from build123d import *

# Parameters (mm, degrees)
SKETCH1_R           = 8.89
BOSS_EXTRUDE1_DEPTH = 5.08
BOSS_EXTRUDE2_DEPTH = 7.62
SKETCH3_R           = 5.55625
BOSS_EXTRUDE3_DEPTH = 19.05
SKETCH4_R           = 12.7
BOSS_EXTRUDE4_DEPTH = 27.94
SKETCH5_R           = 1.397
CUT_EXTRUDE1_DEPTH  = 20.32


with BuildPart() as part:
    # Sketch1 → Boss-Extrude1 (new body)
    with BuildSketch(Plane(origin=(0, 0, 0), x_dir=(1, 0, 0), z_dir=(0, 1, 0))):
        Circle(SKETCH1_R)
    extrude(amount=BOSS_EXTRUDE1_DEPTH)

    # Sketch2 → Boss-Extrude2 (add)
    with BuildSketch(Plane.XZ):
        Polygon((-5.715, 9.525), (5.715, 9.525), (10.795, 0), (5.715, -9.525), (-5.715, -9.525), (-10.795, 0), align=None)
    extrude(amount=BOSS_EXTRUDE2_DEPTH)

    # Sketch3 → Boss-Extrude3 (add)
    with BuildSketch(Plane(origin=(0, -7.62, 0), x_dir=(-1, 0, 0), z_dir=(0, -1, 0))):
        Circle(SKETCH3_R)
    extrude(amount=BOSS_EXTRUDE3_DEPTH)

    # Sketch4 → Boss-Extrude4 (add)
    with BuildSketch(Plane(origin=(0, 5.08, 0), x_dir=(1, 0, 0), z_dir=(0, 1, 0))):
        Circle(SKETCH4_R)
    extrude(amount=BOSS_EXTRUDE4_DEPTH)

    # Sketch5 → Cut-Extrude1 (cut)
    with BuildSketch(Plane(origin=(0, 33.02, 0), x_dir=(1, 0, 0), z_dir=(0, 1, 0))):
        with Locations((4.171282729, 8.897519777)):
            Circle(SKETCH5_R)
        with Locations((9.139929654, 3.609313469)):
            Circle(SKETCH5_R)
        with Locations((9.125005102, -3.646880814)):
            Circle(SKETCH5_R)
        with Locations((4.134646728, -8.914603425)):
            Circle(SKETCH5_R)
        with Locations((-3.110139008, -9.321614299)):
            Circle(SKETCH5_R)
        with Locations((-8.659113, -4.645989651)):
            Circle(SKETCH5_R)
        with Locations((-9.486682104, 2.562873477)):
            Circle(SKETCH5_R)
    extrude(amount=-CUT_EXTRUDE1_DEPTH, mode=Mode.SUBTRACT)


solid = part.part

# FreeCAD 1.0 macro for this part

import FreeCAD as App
import Part
import Sketcher
from FreeCAD import Vector
Q = App.Units.Quantity


def add_polygon(sketch, points):
    """Adds a closed chain of lines whose ends are joined by coincident constraints."""
    first, n = sketch.GeometryCount, len(points)
    for a, b in zip(points, points[1:] + points[:1]):
        sketch.addGeometry(Part.LineSegment(App.Vector(*a, 0), App.Vector(*b, 0)), False)
    for i in range(n):
        sketch.addConstraint(Sketcher.Constraint("Coincident", first + i, 2, first + (i + 1) % n, 1))

doc = App.newDocument("Part")
body = doc.addObject("PartDesign::Body", "Body")

sketch1 = body.newObject("Sketcher::SketchObject", "Sketch")
sketch1.AttachmentSupport = (doc.getObject("XZ_Plane"), [""])
sketch1.MapMode = "FlatFace"
sketch1.addGeometry(Part.Circle(Vector(0, 0, 0), Vector(0, 0, 1), 9), False)
sketch1.addConstraint([
    Sketcher.Constraint("Coincident", 0, 3, -1, 1),
    Sketcher.Constraint("Diameter", 0, Q("0.7 in")),
])
pad1 = body.newObject("PartDesign::Pad", "Pad")
pad1.Profile = sketch1
pad1.Length = Q("0.2 in")
pad1.Reversed = True

sketch2 = body.newObject("Sketcher::SketchObject", "Sketch001")
sketch2.AttachmentSupport = (doc.getObject("XZ_Plane"), [""])
sketch2.MapMode = "FlatFace"
add_polygon(sketch2, [(6, 10), (-6, 10), (-11, 0), (-6, -10), (6, -10), (11, 0)])
sketch2.addConstraint([
    Sketcher.Constraint("Horizontal", 0),
    Sketcher.Constraint("Horizontal", 3),
    Sketcher.Constraint("Symmetric", 0, 2, 3, 2, -1, 1),
    Sketcher.Constraint("Symmetric", 1, 2, 4, 2, -1, 1),
    Sketcher.Constraint("PointOnObject", 1, 2, -1),
    Sketcher.Constraint("Parallel", 2, 5),
    Sketcher.Constraint("Vertical", 0, 2, 2, 2),
    Sketcher.Constraint("DistanceX", 0, 2, 0, 1, Q("0.45 in")),
    Sketcher.Constraint("DistanceX", 1, 2, 0, 2, Q("0.2 in")),
    Sketcher.Constraint("DistanceY", 2, 2, 0, 2, Q("0.75 in")),
])
pad2 = body.newObject("PartDesign::Pad", "Pad001")
pad2.Profile = sketch2
pad2.Length = Q("0.3 in")

sketch3 = body.newObject("Sketcher::SketchObject", "Sketch002")
sketch3.AttachmentSupport = (doc.getObject("XZ_Plane"), [""])
sketch3.MapMode = "FlatFace"
sketch3.AttachmentOffset = App.Placement(Vector(0, 0, 0.3 * 25.4), App.Rotation())
sketch3.addGeometry(Part.Circle(Vector(0, 0, 0), Vector(0, 0, 1), 6), False)
sketch3.addConstraint([
    Sketcher.Constraint("Coincident", 0, 3, -1, 1),
    Sketcher.Constraint("Diameter", 0, Q("0.4375 in")),
])
pad3 = body.newObject("PartDesign::Pad", "Pad002")
pad3.Profile = sketch3
pad3.Length = Q("0.75 in")

sketch4 = body.newObject("Sketcher::SketchObject", "Sketch003")
sketch4.AttachmentSupport = (doc.getObject("XZ_Plane"), [""])
sketch4.MapMode = "FlatFace"
sketch4.AttachmentOffset = App.Placement(Vector(0, 0, -0.2 * 25.4), App.Rotation())
sketch4.addGeometry(Part.Circle(Vector(0, 0, 0), Vector(0, 0, 1), 13), False)
sketch4.addConstraint([
    Sketcher.Constraint("Coincident", 0, 3, -1, 1),
    Sketcher.Constraint("Diameter", 0, Q("1 in")),
])
pad4 = body.newObject("PartDesign::Pad", "Pad003")
pad4.Profile = sketch4
pad4.Length = Q("1.1 in")
pad4.Reversed = True

sketch5 = body.newObject("Sketcher::SketchObject", "Sketch004")
sketch5.AttachmentSupport = (doc.getObject("XZ_Plane"), [""])
sketch5.MapMode = "FlatFace"
sketch5.AttachmentOffset = App.Placement(Vector(0, 0, -1.3 * 25.4), App.Rotation())
sketch5.addGeometry([
    Part.Circle(Vector(4.2, -8.9, 0), Vector(0, 0, 1), 1.4),
    Part.Circle(Vector(9.1, -3.6, 0), Vector(0, 0, 1), 1.4),
    Part.Circle(Vector(9.1, 3.6, 0), Vector(0, 0, 1), 1.4),
    Part.Circle(Vector(4.1, 8.9, 0), Vector(0, 0, 1), 1.4),
    Part.Circle(Vector(-3.1, 9.3, 0), Vector(0, 0, 1), 1.4),
    Part.Circle(Vector(-8.7, 4.6, 0), Vector(0, 0, 1), 1.4),
    Part.Circle(Vector(-9.5, -2.6, 0), Vector(0, 0, 1), 1.4),
], False)
sketch5.addConstraint([
    Sketcher.Constraint("Equal", 0, 1),
    Sketcher.Constraint("Equal", 1, 2),
    Sketcher.Constraint("Equal", 2, 3),
    Sketcher.Constraint("Equal", 3, 4),
    Sketcher.Constraint("Equal", 4, 5),
    Sketcher.Constraint("Equal", 5, 6),
    Sketcher.Constraint("Diameter", 0, Q("0.11 in")),
    Sketcher.Constraint("DistanceY", 0, 3, 2, 3, Q("12.544401 mm")),
    Sketcher.Constraint("DistanceY", 0, 3, -1, 1, Q("8.89752 mm")),
    Sketcher.Constraint("DistanceX", -1, 1, 1, 3, Q("9.13993 mm")),
    Sketcher.Constraint("DistanceX", 4, 3, -1, 1, Q("3.110139 mm")),
    Sketcher.Constraint("DistanceY", -1, 1, 5, 3, Q("4.64599 mm")),
    Sketcher.Constraint("DistanceX", 3, 3, 2, 3, Q("4.990358 mm")),
    Sketcher.Constraint("DistanceY", 3, 3, 4, 3, Q("0.407011 mm")),
    Sketcher.Constraint("DistanceX", 4, 3, 0, 3, Q("7.281422 mm")),
    Sketcher.Constraint("DistanceX", 5, 3, 3, 3, Q("12.79376 mm")),
    Sketcher.Constraint("DistanceX", 6, 3, 5, 3, Q("0.827569 mm")),
    Sketcher.Constraint("DistanceX", 6, 3, 1, 3, Q("18.626612 mm")),
    Sketcher.Constraint("DistanceY", 1, 3, 6, 3, Q("1.04644 mm")),
    Sketcher.Constraint("DistanceY", 1, 3, -1, 1, Q("3.609313 mm")),
    Sketcher.Constraint("DistanceY", -1, 1, 3, 3, Q("8.914603 mm")),
])
pocket1 = body.newObject("PartDesign::Pocket", "Pocket")
pocket1.Profile = sketch5
pocket1.Length = Q("0.8 in")
pocket1.Reversed = True

doc.recompute()
